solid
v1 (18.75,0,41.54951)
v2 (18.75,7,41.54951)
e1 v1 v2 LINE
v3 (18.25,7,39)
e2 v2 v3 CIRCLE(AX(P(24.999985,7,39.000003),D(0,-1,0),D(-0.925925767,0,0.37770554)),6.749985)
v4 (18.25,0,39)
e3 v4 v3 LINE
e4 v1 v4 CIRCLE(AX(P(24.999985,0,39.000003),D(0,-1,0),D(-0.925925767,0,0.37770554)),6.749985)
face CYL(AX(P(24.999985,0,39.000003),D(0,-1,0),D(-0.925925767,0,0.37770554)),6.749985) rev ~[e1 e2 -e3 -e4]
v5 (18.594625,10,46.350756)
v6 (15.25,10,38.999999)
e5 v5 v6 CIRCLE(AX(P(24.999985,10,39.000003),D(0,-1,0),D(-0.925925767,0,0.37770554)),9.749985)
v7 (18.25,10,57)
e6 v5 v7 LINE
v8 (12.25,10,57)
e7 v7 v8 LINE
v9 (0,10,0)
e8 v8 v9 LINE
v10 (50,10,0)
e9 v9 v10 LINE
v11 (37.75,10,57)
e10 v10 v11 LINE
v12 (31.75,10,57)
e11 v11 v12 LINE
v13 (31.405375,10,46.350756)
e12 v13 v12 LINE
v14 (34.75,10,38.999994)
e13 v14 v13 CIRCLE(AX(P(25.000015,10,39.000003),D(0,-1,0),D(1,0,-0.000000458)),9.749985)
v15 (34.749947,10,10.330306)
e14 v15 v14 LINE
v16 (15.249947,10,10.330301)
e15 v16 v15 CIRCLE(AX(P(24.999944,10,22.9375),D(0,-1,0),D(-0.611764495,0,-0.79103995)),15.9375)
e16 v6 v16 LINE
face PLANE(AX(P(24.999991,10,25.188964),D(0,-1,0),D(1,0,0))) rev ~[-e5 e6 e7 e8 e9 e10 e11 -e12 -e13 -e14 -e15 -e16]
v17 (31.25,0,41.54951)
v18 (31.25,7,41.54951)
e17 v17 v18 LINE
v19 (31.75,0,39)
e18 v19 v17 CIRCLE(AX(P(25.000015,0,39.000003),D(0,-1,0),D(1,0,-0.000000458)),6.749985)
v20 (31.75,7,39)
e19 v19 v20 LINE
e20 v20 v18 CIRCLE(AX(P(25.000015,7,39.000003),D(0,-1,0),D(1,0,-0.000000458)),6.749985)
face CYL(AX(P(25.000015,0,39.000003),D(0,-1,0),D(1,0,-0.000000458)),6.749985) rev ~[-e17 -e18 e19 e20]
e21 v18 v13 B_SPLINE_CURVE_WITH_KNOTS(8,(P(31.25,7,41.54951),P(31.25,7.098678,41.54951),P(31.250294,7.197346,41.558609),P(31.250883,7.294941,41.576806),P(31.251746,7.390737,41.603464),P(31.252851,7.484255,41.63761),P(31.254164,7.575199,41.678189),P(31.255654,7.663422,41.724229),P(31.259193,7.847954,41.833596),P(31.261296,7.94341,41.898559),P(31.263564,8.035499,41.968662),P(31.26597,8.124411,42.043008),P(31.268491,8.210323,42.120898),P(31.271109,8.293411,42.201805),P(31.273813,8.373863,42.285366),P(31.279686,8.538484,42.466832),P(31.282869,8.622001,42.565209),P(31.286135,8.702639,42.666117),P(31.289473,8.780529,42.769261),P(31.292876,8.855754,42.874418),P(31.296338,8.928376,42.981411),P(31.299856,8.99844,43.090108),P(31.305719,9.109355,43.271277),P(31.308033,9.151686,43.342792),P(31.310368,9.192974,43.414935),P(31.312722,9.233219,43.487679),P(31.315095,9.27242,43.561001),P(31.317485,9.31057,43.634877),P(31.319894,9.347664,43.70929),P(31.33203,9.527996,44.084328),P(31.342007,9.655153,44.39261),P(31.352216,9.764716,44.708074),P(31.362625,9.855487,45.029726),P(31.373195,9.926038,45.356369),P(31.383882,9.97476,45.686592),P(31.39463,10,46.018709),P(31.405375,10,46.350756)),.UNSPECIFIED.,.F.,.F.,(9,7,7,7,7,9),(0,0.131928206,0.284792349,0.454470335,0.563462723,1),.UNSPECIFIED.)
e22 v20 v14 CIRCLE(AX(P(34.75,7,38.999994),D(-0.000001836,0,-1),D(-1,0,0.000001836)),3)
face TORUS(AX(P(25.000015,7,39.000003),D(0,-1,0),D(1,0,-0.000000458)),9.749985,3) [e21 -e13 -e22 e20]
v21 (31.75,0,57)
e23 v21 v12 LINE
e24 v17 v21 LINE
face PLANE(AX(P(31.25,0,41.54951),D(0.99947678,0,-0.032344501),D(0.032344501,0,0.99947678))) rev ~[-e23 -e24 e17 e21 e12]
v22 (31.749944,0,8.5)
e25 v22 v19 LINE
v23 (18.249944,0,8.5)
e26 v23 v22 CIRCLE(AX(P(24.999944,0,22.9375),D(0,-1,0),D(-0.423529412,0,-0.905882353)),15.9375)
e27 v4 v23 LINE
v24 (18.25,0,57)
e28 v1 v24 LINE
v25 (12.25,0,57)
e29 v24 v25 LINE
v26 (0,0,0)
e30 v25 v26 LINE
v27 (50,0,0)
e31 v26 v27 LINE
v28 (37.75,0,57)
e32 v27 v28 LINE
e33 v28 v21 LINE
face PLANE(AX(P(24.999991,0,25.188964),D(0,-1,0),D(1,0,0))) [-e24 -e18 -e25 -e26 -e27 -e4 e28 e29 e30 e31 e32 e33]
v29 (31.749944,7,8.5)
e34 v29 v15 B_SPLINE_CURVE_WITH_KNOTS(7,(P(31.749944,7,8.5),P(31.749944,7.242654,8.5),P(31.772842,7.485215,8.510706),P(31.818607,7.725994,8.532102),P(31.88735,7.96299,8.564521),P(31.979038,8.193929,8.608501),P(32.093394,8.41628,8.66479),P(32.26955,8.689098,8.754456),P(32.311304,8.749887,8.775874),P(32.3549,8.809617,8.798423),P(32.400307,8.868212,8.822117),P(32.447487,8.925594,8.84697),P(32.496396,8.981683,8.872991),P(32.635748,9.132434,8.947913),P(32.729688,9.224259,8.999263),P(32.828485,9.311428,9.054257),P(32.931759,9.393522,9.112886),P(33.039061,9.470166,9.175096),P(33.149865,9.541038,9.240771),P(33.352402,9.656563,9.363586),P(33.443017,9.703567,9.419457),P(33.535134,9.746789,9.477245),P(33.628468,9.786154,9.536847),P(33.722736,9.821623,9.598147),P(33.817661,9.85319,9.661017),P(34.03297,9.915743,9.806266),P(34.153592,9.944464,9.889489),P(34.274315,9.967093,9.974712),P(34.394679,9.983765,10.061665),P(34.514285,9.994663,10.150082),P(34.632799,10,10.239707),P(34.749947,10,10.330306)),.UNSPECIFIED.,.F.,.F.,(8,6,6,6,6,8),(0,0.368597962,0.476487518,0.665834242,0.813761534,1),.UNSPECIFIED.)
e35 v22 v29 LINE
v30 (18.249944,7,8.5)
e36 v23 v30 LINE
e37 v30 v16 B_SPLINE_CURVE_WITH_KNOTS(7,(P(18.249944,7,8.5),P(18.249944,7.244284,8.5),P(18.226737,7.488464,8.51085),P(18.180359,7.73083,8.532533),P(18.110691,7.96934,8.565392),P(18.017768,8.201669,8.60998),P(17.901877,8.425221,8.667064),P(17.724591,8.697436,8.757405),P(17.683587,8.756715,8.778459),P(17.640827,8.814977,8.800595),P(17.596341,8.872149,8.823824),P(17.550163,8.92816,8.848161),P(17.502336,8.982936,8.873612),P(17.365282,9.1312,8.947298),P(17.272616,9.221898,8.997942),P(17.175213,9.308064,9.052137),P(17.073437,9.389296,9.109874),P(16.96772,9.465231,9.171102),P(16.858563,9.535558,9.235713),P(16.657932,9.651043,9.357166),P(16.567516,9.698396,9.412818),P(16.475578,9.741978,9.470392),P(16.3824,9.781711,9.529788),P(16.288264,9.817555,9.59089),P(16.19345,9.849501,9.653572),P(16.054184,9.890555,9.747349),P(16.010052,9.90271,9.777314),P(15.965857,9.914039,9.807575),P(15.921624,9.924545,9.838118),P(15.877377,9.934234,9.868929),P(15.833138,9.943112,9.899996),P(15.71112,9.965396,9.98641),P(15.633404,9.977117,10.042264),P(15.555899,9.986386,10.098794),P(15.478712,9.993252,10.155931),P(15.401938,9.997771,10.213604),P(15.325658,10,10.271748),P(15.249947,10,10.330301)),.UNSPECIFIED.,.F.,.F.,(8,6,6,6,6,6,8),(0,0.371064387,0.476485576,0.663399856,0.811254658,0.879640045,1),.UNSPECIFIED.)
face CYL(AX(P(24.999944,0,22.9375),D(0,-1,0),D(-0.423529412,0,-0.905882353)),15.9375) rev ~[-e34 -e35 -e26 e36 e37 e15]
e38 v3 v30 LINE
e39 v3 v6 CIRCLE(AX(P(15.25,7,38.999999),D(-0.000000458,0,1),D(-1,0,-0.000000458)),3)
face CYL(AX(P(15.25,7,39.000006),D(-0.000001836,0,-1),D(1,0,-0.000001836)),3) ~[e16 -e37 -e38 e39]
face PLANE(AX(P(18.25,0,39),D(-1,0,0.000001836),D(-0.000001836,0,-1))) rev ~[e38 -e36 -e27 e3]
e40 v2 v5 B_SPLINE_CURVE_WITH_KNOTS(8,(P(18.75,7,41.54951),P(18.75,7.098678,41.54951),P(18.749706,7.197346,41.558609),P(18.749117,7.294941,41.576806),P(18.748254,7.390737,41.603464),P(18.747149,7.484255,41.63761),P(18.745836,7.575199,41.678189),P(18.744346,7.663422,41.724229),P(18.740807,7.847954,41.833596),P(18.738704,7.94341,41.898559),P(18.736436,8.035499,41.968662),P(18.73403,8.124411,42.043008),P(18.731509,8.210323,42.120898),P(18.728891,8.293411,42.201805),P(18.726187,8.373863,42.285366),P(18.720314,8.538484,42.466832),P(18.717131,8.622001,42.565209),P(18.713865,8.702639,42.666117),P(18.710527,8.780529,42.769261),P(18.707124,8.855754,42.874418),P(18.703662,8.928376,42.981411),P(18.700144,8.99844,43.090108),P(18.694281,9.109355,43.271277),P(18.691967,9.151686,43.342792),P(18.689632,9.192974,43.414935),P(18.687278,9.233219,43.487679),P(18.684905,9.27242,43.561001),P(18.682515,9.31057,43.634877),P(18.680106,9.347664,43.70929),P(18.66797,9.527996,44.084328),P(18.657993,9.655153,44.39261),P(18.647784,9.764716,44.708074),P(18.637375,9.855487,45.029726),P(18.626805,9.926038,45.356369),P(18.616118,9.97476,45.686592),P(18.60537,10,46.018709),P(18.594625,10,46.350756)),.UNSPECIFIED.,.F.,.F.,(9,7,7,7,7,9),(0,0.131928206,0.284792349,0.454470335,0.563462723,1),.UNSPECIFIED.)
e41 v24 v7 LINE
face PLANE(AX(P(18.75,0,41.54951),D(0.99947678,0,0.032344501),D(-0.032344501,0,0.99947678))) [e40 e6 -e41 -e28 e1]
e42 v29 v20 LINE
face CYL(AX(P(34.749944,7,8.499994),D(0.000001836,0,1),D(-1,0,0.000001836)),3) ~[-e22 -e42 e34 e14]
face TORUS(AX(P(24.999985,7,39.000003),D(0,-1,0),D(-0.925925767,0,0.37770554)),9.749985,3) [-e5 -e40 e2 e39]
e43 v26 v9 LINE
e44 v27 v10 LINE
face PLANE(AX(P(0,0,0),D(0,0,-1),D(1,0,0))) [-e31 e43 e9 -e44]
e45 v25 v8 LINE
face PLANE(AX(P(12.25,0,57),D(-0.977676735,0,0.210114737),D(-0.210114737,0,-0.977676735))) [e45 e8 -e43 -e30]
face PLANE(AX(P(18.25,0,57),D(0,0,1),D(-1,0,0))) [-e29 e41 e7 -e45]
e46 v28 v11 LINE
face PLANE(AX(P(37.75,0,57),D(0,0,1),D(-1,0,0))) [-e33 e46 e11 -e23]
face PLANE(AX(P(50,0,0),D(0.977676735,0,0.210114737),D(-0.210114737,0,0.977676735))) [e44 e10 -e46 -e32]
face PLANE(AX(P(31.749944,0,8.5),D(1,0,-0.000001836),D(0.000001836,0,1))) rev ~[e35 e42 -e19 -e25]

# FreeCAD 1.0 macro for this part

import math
import FreeCAD as App
import Part
import Sketcher
Q = App.Units.Quantity


def edges_at(feature, points):
    """Names of the edges that pass closest to the given points."""
    edges = feature.Shape.Edges
    near = lambda p: min(range(len(edges)), key=lambda i: edges[i].distToShape(Part.Vertex(*p))[0])
    return sorted({f"Edge{near(p) + 1}" for p in points})


def add_polygon(sketch, points):
    """Adds a closed chain of lines whose ends are joined by coincident constraints."""
    first, n = sketch.GeometryCount, len(points)
    for a, b in zip(points, points[1:] + points[:1]):
        sketch.addGeometry(Part.LineSegment(App.Vector(*a, 0), App.Vector(*b, 0)), False)
    for i in range(n):
        sketch.addConstraint(Sketcher.Constraint("Coincident", first + i, 2, first + (i + 1) % n, 1))

doc = App.newDocument("Part")
params = doc.addObject("Spreadsheet::Sheet", "Params")
for row, (alias, value) in enumerate([
    ("sketch1_width", "6 mm"),
    ("sketch1_width2", "50 mm"),
    ("sketch1_width3", "6 mm"),
    ("sketch1_length", "30.5 mm"),
    ("sketch1_length2", "30.5 mm"),
    ("pad1_length", "10 mm"),
    ("fillet_radius", "3 mm"),
    ("sketch2_width", "28 mm"),
    ("sketch2_height", "6 mm"),
    ("pad2_length", "4 mm"),
], start=1):
    params.set(f"A{row}", alias)
    params.set(f"B{row}", "=" + value)
    params.setAlias(f"B{row}", alias)

body = doc.addObject("PartDesign::Body", "Body")

# Sketch on XZ plane
sketch1 = body.newObject("Sketcher::SketchObject", "Sketch")
sketch1.AttachmentSupport = (doc.getObject("XZ_Plane"), [""])
sketch1.MapMode = "FlatFace"
sketch1.addGeometry([
    Part.LineSegment(App.Vector(18.25, 57, 0), App.Vector(12.25, 57, 0)),  # 0
    Part.LineSegment(App.Vector(12.25, 57, 0), App.Vector(0, 0, 0)),  # 1
    Part.LineSegment(App.Vector(0, 0, 0), App.Vector(50, 0, 0)),  # 2
    Part.LineSegment(App.Vector(50, 0, 0), App.Vector(37.75, 57, 0)),  # 3
    Part.LineSegment(App.Vector(37.75, 57, 0), App.Vector(31.75, 57, 0)),  # 4
    Part.LineSegment(App.Vector(31.75, 57, 0), App.Vector(31.25, 41.54951, 0)),  # 5
    Part.ArcOfCircle(Part.Circle(App.Vector(25.000015, 39.000003, 0), App.Vector(0, 0, 1), 6.749985), math.radians(-0.000026), math.radians(22.191631)),  # 6
    Part.LineSegment(App.Vector(31.75, 39, 0), App.Vector(31.749944, 8.5, 0)),  # 7
    Part.ArcOfCircle(Part.Circle(App.Vector(24.999944, 22.9375, 0), App.Vector(0, 0, 1), 15.9375), math.radians(-115.057615), math.radians(-64.942385)),  # 8
    Part.LineSegment(App.Vector(18.249944, 8.5, 0), App.Vector(18.25, 39, 0)),  # 9
    Part.ArcOfCircle(Part.Circle(App.Vector(24.999985, 39.000003, 0), App.Vector(0, 0, 1), 6.749985), math.radians(157.808369), math.radians(180.000026)),  # 10
    Part.LineSegment(App.Vector(18.75, 41.54951, 0), App.Vector(18.25, 57, 0)),  # 11
], False)
sketch1.addConstraint([
    Sketcher.Constraint("Coincident", 0, 2, 1, 1),
    Sketcher.Constraint("Coincident", 1, 2, 2, 1),
    Sketcher.Constraint("Coincident", 2, 2, 3, 1),
    Sketcher.Constraint("Coincident", 3, 2, 4, 1),
    Sketcher.Constraint("Coincident", 4, 2, 5, 1),
    Sketcher.Constraint("Coincident", 5, 2, 6, 2),
    Sketcher.Constraint("Coincident", 6, 1, 7, 1),
    Sketcher.Constraint("Coincident", 7, 2, 8, 2),
    Sketcher.Constraint("Coincident", 8, 1, 9, 1),
    Sketcher.Constraint("Coincident", 9, 2, 10, 2),
    Sketcher.Constraint("Coincident", 10, 1, 11, 1),
    Sketcher.Constraint("Coincident", 11, 2, 0, 1),
    Sketcher.Constraint("Horizontal", 0),
    Sketcher.Constraint("Horizontal", 2),
    Sketcher.Constraint("Horizontal", 4),
    Sketcher.Constraint("Coincident", 1, 2, -1, 1),
    Sketcher.Constraint("DistanceX", 0, 2, 0, 1, Q("6 mm")),
    Sketcher.Constraint("DistanceX", 2, 1, 2, 2, Q("50 mm")),
    Sketcher.Constraint("DistanceX", 4, 2, 4, 1, Q("6 mm")),
    Sketcher.Constraint("DistanceY", -1, 1, 0, 2, Q("57 mm")),
    Sketcher.Constraint("DistanceY", -1, 1, 3, 2, Q("57 mm")),
    Sketcher.Constraint("DistanceY", -1, 1, 6, 1, Q("39 mm")),
    Sketcher.Constraint("DistanceY", -1, 1, 9, 2, Q("39 mm")),
    Sketcher.Constraint("DistanceX", 9, 2, 5, 2, Q("13 mm")),
    Sketcher.Constraint("DistanceX", 10, 1, 6, 1, Q("13 mm")),
    Sketcher.Constraint("Distance", 7, Q("30.5 mm")),
    Sketcher.Constraint("Distance", 9, Q("30.5 mm")),
    Sketcher.Constraint("Radius", 8, Q("15.9375 mm")),
    Sketcher.Constraint("DistanceX", 0, 2, 3, 2, Q("25.5 mm")),
    Sketcher.Constraint("DistanceX", 5, 2, 4, 2, Q("0.5 mm")),
    Sketcher.Constraint("DistanceX", 5, 2, 6, 1, Q("0.5 mm")),
    Sketcher.Constraint("DistanceX", 8, 1, 7, 2, Q("13.5 mm")),
    Sketcher.Constraint("DistanceX", -1, 1, 0, 2, Q("12.25 mm")),
    Sketcher.Constraint("Radius", 6, Q("6.749985 mm")),
    Sketcher.Constraint("Radius", 10, Q("6.749985 mm")),
    Sketcher.Constraint("Distance", 5, Q("15.458578 mm")),
    Sketcher.Constraint("Distance", 11, Q("15.458578 mm")),
    Sketcher.Constraint("DistanceX", 6, 3, 7, 2, Q("6.749929 mm")),
])
sketch1.setExpression("Constraints[16]", "Params.sketch1_width")
sketch1.setExpression("Constraints[17]", "Params.sketch1_width2")
sketch1.setExpression("Constraints[18]", "Params.sketch1_width3")
sketch1.setExpression("Constraints[25]", "Params.sketch1_length")
sketch1.setExpression("Constraints[26]", "Params.sketch1_length2")
pad1 = body.newObject("PartDesign::Pad", "Pad")
pad1.Profile = sketch1
pad1.setExpression("Length", "Params.pad1_length")
pad1.Reversed = True
doc.recompute()

fillet = body.newObject("PartDesign::Fillet", "Fillet")
fillet.Base = (pad1, edges_at(pad1, [(31.75, 10, 23.75), (18.25, 10, 23.75)]))
fillet.setExpression("Radius", "Params.fillet_radius")

# Sketch on XZ plane
sketch2 = body.newObject("Sketcher::SketchObject", "Sketch001")
sketch2.AttachmentSupport = (doc.getObject("XZ_Plane"), [""])
sketch2.MapMode = "FlatFace"
add_polygon(sketch2, [(39, 6), (11, 6), (11, 0), (39, 0)])  # lines 0-3
sketch2.addConstraint([
    Sketcher.Constraint("Horizontal", 0),
    Sketcher.Constraint("Vertical", 1),
    Sketcher.Constraint("Horizontal", 2),
    Sketcher.Constraint("Vertical", 3),
    Sketcher.Constraint("PointOnObject", 1, 2, -1),
    Sketcher.Constraint("DistanceX", 0, 2, 0, 1, Q("28 mm")),
    Sketcher.Constraint("DistanceY", 1, 2, 1, 1, Q("6 mm")),
    Sketcher.Constraint("DistanceX", -1, 1, 0, 2, Q("11 mm")),
])
sketch2.setExpression("Constraints[9]", "Params.sketch2_width")
sketch2.setExpression("Constraints[10]", "Params.sketch2_height")
pad2 = body.newObject("PartDesign::Pad", "Pad001")
pad2.Profile = sketch2
pad2.setExpression("Length", "Params.pad2_length")
pad2.Reversed = True

doc.recompute()
